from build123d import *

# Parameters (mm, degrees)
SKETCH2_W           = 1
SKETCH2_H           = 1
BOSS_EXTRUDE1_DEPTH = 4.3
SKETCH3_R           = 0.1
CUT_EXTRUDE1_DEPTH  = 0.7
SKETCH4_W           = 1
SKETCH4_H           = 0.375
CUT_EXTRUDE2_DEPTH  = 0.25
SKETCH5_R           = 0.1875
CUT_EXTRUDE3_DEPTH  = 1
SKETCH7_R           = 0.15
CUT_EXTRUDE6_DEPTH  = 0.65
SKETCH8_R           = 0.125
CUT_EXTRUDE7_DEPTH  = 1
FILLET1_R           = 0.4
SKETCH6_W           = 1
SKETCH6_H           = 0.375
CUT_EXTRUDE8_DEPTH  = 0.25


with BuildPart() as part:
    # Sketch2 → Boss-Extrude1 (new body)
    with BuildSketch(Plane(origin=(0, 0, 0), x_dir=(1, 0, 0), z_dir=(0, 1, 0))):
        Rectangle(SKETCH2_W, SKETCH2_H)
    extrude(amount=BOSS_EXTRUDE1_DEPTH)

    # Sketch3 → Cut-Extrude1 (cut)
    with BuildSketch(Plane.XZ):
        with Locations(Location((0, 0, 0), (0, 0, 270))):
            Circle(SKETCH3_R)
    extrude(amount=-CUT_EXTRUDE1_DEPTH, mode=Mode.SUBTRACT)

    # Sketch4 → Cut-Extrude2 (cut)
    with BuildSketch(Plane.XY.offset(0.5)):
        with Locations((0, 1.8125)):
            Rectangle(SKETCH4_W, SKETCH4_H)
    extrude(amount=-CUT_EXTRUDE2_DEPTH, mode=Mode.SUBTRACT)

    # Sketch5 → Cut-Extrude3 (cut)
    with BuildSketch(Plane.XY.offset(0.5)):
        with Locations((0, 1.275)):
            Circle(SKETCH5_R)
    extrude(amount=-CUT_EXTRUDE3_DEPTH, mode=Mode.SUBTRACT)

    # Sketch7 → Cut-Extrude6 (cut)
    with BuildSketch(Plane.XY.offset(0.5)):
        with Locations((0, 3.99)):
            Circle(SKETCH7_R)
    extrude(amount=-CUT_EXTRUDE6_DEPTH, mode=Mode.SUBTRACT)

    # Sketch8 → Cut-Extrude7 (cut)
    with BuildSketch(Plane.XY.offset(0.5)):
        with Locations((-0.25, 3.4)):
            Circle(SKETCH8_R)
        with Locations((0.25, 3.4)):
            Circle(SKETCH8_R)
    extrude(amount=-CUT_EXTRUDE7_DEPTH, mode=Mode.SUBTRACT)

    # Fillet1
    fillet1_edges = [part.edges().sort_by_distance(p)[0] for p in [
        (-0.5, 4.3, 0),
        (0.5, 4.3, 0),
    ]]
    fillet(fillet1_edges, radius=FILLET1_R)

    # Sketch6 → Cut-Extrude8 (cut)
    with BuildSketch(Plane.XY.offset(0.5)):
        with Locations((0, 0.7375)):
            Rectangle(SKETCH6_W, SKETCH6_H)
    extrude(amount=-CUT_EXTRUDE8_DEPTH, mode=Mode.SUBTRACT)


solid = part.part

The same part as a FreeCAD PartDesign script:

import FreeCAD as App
import Part
import Sketcher


def edges_at(feature, points):
    """Names of the edges that pass closest to the given points."""
    edges = feature.Shape.Edges
    near = lambda p: min(range(len(edges)), key=lambda i: edges[i].distToShape(Part.Vertex(*p))[0])
    return sorted({f"Edge{near(p) + 1}" for p in points})


def add_polygon(sketch, points):
    """Adds a closed chain of lines whose ends are joined by coincident constraints."""
    first, n = sketch.GeometryCount, len(points)
    for a, b in zip(points, points[1:] + points[:1]):
        sketch.addGeometry(Part.LineSegment(App.Vector(*a, 0), App.Vector(*b, 0)), False)
    for i in range(n):
        sketch.addConstraint(Sketcher.Constraint("Coincident", first + i, 2, first + (i + 1) % n, 1))

doc = App.newDocument("Part")
body = doc.addObject("PartDesign::Body", "Body")

sketch1 = doc.addObject("Sketcher::SketchObject", "Sketch")
body.addObject(sketch1)
sketch1.AttachmentSupport = (doc.XZ_Plane, [""])
sketch1.MapMode = "FlatFace"
add_polygon(sketch1, [(-0.5, -0.5), (-0.5, 0.5), (0.5, 0.5), (0.5, -0.5)])
sketch1.addConstraint(Sketcher.Constraint("Vertical", 0))
sketch1.addConstraint(Sketcher.Constraint("Horizontal", 1))
sketch1.addConstraint(Sketcher.Constraint("Vertical", 2))
sketch1.addConstraint(Sketcher.Constraint("Horizontal", 3))
sketch1.addConstraint(Sketcher.Constraint("Symmetric", 0, 2, 2, 2, -1, 1))
sketch1.addConstraint(Sketcher.Constraint("Equal", 3, 0))
sketch1.addConstraint(Sketcher.Constraint("DistanceX", 1, 1, 1, 2, 1.0))
pad1 = doc.addObject("PartDesign::Pad", "Pad")
body.addObject(pad1)
pad1.Profile = sketch1
pad1.Length = 4.3
pad1.Reversed = True

sketch2 = doc.addObject("Sketcher::SketchObject", "Sketch001")
body.addObject(sketch2)
sketch2.AttachmentSupport = (doc.XZ_Plane, [""])
sketch2.MapMode = "FlatFace"
sketch2.addGeometry(Part.Circle(App.Vector(0, 0, 0), App.Vector(0, 0, 1), 0.1), False)
sketch2.addConstraint(Sketcher.Constraint("Coincident", 0, 3, -1, 1))
sketch2.addConstraint(Sketcher.Constraint("Diameter", 0, 0.2))
pocket1 = doc.addObject("PartDesign::Pocket", "Pocket")
body.addObject(pocket1)
pocket1.Profile = sketch2
pocket1.Length = 0.7

sketch3 = doc.addObject("Sketcher::SketchObject", "Sketch002")
body.addObject(sketch3)
sketch3.AttachmentSupport = (doc.XY_Plane, [""])
sketch3.MapMode = "FlatFace"
sketch3.AttachmentOffset = App.Placement(App.Vector(0, 0, 0.5), App.Rotation())
add_polygon(sketch3, [(-0.5, 2), (-0.5, 1.625), (0.5, 1.625), (0.5, 2)])
sketch3.addConstraint(Sketcher.Constraint("Vertical", 0))
sketch3.addConstraint(Sketcher.Constraint("Horizontal", 1))
sketch3.addConstraint(Sketcher.Constraint("Vertical", 2))
sketch3.addConstraint(Sketcher.Constraint("Horizontal", 3))
sketch3.addConstraint(Sketcher.Constraint("DistanceX", 1, 1, 1, 2, 1.0))
sketch3.addConstraint(Sketcher.Constraint("DistanceY", -1, 1, 2, 2, 2.0))
sketch3.addConstraint(Sketcher.Constraint("DistanceX", 0, 2, -1, 1, 0.5))
sketch3.addConstraint(Sketcher.Constraint("DistanceY", 0, 2, 0, 1, 0.375))
pocket2 = doc.addObject("PartDesign::Pocket", "Pocket001")
body.addObject(pocket2)
pocket2.Profile = sketch3
pocket2.Length = 0.25

sketch4 = doc.addObject("Sketcher::SketchObject", "Sketch003")
body.addObject(sketch4)
sketch4.AttachmentSupport = (doc.XY_Plane, [""])
sketch4.MapMode = "FlatFace"
sketch4.AttachmentOffset = App.Placement(App.Vector(0, 0, 0.5), App.Rotation())
sketch4.addGeometry(Part.Circle(App.Vector(0, 1.275, 0), App.Vector(0, 0, 1), 0.1875), False)
sketch4.addConstraint(Sketcher.Constraint("PointOnObject", 0, 3, -2))
sketch4.addConstraint(Sketcher.Constraint("Diameter", 0, 0.375))
sketch4.addConstraint(Sketcher.Constraint("DistanceY", -1, 1, 0, 3, 1.275))
pocket3 = doc.addObject("PartDesign::Pocket", "Pocket002")
body.addObject(pocket3)
pocket3.Profile = sketch4
pocket3.Length = 1

sketch5 = doc.addObject("Sketcher::SketchObject", "Sketch004")
body.addObject(sketch5)
sketch5.AttachmentSupport = (doc.XY_Plane, [""])
sketch5.MapMode = "FlatFace"
sketch5.AttachmentOffset = App.Placement(App.Vector(0, 0, 0.5), App.Rotation())
sketch5.addGeometry(Part.Circle(App.Vector(0, 3.99, 0), App.Vector(0, 0, 1), 0.15), False)
sketch5.addConstraint(Sketcher.Constraint("PointOnObject", 0, 3, -2))
sketch5.addConstraint(Sketcher.Constraint("Diameter", 0, 0.3))
sketch5.addConstraint(Sketcher.Constraint("DistanceY", -1, 1, 0, 3, 3.99))
pocket4 = doc.addObject("PartDesign::Pocket", "Pocket003")
body.addObject(pocket4)
pocket4.Profile = sketch5
pocket4.Length = 0.65

sketch6 = doc.addObject("Sketcher::SketchObject", "Sketch005")
body.addObject(sketch6)
sketch6.AttachmentSupport = (doc.XY_Plane, [""])
sketch6.MapMode = "FlatFace"
sketch6.AttachmentOffset = App.Placement(App.Vector(0, 0, 0.5), App.Rotation())
sketch6.addGeometry(Part.Circle(App.Vector(-0.25, 3.4, 0), App.Vector(0, 0, 1), 0.125), False)
sketch6.addGeometry(Part.Circle(App.Vector(0.25, 3.4, 0), App.Vector(0, 0, 1), 0.125), False)
sketch6.addConstraint(Sketcher.Constraint("Equal", 0, 1))
sketch6.addConstraint(Sketcher.Constraint("Symmetric", 0, 3, 1, 3, -2))
sketch6.addConstraint(Sketcher.Constraint("Diameter", 0, 0.25))
sketch6.addConstraint(Sketcher.Constraint("DistanceY", -1, 1, 0, 3, 3.4))
sketch6.addConstraint(Sketcher.Constraint("DistanceX", 0, 3, 1, 3, 0.5))
pocket5 = doc.addObject("PartDesign::Pocket", "Pocket004")
body.addObject(pocket5)
pocket5.Profile = sketch6
pocket5.Length = 1
doc.recompute()

fillet = doc.addObject("PartDesign::Fillet", "Fillet")
body.addObject(fillet)
fillet.Base = (pocket5, edges_at(pocket5, [(-0.5, 4.3, 0), (0.5, 4.3, 0)]))
fillet.Radius = 0.4

sketch7 = doc.addObject("Sketcher::SketchObject", "Sketch006")
body.addObject(sketch7)
sketch7.AttachmentSupport = (doc.XY_Plane, [""])
sketch7.MapMode = "FlatFace"
sketch7.AttachmentOffset = App.Placement(App.Vector(0, 0, 0.5), App.Rotation())
add_polygon(sketch7, [(-0.5, 0.925), (-0.5, 0.55), (0.5, 0.55), (0.5, 0.925)])
sketch7.addConstraint(Sketcher.Constraint("Vertical", 0))
sketch7.addConstraint(Sketcher.Constraint("Horizontal", 1))
sketch7.addConstraint(Sketcher.Constraint("Vertical", 2))
sketch7.addConstraint(Sketcher.Constraint("Horizontal", 3))
sketch7.addConstraint(Sketcher.Constraint("DistanceX", 1, 1, 1, 2, 1.0))
sketch7.addConstraint(Sketcher.Constraint("DistanceX", 0, 2, -1, 1, 0.5))
sketch7.addConstraint(Sketcher.Constraint("DistanceY", 0, 2, 0, 1, 0.375))
sketch7.addConstraint(Sketcher.Constraint("DistanceY", -1, 1, 0, 2, 0.55))
pocket6 = doc.addObject("PartDesign::Pocket", "Pocket005")
body.addObject(pocket6)
pocket6.Profile = sketch7
pocket6.Length = 0.25

doc.recompute()
